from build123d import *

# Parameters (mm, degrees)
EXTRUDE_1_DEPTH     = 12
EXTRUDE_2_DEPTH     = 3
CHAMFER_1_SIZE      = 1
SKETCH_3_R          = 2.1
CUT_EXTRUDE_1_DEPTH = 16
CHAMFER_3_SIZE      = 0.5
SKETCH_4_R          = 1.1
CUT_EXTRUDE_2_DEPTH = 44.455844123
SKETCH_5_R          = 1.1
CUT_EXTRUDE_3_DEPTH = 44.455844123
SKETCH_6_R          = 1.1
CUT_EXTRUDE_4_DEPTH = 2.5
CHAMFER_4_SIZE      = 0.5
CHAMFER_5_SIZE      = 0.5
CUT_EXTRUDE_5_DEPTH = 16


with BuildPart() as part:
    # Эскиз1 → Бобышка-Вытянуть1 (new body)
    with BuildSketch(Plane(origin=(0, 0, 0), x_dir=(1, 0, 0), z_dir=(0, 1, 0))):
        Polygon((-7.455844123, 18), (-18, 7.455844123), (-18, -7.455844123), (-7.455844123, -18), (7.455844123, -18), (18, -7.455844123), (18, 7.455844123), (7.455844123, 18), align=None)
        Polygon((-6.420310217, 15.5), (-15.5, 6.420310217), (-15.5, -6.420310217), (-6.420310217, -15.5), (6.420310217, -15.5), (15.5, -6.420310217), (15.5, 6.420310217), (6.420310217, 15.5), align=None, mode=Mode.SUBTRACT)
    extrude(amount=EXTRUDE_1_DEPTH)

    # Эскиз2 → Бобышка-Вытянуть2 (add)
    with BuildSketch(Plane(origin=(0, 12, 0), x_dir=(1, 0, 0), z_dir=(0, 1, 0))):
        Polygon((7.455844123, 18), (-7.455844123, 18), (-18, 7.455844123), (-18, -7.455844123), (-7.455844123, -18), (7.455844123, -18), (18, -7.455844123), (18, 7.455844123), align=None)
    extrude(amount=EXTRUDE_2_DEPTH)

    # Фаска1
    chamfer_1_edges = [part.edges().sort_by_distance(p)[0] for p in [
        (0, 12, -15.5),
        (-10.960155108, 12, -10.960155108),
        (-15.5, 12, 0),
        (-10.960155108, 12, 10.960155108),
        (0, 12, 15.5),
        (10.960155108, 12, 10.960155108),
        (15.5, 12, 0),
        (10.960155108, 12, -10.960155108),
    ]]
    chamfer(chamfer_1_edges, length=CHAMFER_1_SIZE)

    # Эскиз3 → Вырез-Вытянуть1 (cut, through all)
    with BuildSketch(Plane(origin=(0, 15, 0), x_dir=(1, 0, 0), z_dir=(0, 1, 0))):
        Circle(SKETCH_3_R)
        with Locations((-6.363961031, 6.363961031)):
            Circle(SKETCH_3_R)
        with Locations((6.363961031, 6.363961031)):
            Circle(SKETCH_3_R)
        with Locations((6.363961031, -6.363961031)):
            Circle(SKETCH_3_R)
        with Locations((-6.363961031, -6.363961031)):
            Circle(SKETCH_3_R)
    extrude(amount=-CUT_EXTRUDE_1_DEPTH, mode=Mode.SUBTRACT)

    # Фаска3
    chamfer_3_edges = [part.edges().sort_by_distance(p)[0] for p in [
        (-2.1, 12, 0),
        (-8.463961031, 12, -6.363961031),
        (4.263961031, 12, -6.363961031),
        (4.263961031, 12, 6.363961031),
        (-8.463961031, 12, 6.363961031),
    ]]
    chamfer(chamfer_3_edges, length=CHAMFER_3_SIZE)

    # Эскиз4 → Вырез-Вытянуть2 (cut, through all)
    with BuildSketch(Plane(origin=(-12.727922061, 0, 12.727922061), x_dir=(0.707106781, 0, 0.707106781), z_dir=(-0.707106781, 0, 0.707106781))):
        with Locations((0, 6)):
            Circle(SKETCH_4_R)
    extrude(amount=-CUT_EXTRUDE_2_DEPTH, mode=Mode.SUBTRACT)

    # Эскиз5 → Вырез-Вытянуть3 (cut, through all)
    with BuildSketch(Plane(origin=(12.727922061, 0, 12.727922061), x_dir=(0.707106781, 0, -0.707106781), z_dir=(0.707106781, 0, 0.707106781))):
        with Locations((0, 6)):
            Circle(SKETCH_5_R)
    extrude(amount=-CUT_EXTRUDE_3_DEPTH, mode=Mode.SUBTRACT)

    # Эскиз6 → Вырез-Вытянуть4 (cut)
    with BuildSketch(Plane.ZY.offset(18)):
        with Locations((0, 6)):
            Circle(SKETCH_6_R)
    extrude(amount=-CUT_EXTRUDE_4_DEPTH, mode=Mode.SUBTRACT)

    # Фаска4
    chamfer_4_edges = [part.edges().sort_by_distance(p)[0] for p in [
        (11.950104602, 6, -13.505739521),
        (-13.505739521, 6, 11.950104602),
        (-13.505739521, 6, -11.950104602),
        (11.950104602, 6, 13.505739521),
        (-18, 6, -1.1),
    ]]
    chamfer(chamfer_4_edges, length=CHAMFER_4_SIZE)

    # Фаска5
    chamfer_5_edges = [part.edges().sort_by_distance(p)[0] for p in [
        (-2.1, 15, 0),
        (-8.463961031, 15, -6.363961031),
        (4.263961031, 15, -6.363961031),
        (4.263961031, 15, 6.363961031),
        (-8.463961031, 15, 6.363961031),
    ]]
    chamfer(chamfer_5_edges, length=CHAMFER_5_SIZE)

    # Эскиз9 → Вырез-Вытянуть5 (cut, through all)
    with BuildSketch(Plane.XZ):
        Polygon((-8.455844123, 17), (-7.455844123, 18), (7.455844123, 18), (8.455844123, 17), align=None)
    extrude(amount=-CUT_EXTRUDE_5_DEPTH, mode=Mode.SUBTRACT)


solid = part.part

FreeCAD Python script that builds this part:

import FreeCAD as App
import Part
import Sketcher
from FreeCAD import Vector
Q = App.Units.Quantity


def edges_at(feature, points):
    """Names of the edges that pass closest to the given points."""
    edges = feature.Shape.Edges
    near = lambda p: min(range(len(edges)), key=lambda i: edges[i].distToShape(Part.Vertex(*p))[0])
    return sorted({f"Edge{near(p) + 1}" for p in points})

doc = App.newDocument("Part")
params = doc.addObject("Spreadsheet::Sheet", "Params")
for row, (alias, value) in enumerate([
    ("pad1_length", "12 mm"),
    ("pad2_length", "3 mm"),
    ("chamfer_size", "1 mm"),
    ("sketch3_diameter", "4.2 mm"),
    ("chamfer2_size", "0.5 mm"),
    ("sketch4_diameter", "2.2 mm"),
    ("sketch5_diameter", "2.2 mm"),
    ("sketch6_diameter", "2.2 mm"),
    ("pocket4_length", "2.5 mm"),
    ("chamfer3_size", "0.5 mm"),
    ("chamfer4_size", "0.5 mm"),
], start=1):
    params.set(f"A{row}", alias)
    params.set(f"B{row}", "=" + value)
    params.setAlias(f"B{row}", alias)

body = doc.addObject("PartDesign::Body", "Body")

# Sketch on XZ plane
sketch1 = body.newObject("Sketcher::SketchObject", "Sketch")
sketch1.AttachmentSupport = (doc.getObject("XZ_Plane"), [""])
sketch1.MapMode = "FlatFace"
sketch1.addGeometry([
    Part.LineSegment(Vector(-7, -18, 0), Vector(-18, -7, 0)),  # 0
    Part.LineSegment(Vector(-18, -7, 0), Vector(-18, 7, 0)),  # 1
    Part.LineSegment(Vector(-18, 7, 0), Vector(-7, 18, 0)),  # 2
    Part.LineSegment(Vector(-7, 18, 0), Vector(7, 18, 0)),  # 3
    Part.LineSegment(Vector(7, 18, 0), Vector(18, 7, 0)),  # 4
    Part.LineSegment(Vector(18, 7, 0), Vector(18, -7, 0)),  # 5
    Part.LineSegment(Vector(18, -7, 0), Vector(7, -18, 0)),  # 6
    Part.LineSegment(Vector(7, -18, 0), Vector(-7, -18, 0)),  # 7
    Part.LineSegment(Vector(-16, -6, 0), Vector(-6, -16, 0)),  # 8
    Part.LineSegment(Vector(-6, -16, 0), Vector(6, -16, 0)),  # 9
    Part.LineSegment(Vector(6, -16, 0), Vector(16, -6, 0)),  # 10
    Part.LineSegment(Vector(16, -6, 0), Vector(16, 6, 0)),  # 11
    Part.LineSegment(Vector(16, 6, 0), Vector(6, 16, 0)),  # 12
    Part.LineSegment(Vector(6, 16, 0), Vector(-6, 16, 0)),  # 13
    Part.LineSegment(Vector(-6, 16, 0), Vector(-16, 6, 0)),  # 14
    Part.LineSegment(Vector(-16, 6, 0), Vector(-16, -6, 0)),  # 15
], False)
sketch1.addConstraint([
    Sketcher.Constraint("Coincident", 0, 2, 1, 1),
    Sketcher.Constraint("Coincident", 1, 2, 2, 1),
    Sketcher.Constraint("Coincident", 2, 2, 3, 1),
    Sketcher.Constraint("Coincident", 3, 2, 4, 1),
    Sketcher.Constraint("Coincident", 4, 2, 5, 1),
    Sketcher.Constraint("Coincident", 5, 2, 6, 1),
    Sketcher.Constraint("Coincident", 6, 2, 7, 1),
    Sketcher.Constraint("Coincident", 7, 2, 0, 1),
    Sketcher.Constraint("Coincident", 8, 2, 9, 1),
    Sketcher.Constraint("Coincident", 9, 2, 10, 1),
    Sketcher.Constraint("Coincident", 10, 2, 11, 1),
    Sketcher.Constraint("Coincident", 11, 2, 12, 1),
    Sketcher.Constraint("Coincident", 12, 2, 13, 1),
    Sketcher.Constraint("Coincident", 13, 2, 14, 1),
    Sketcher.Constraint("Coincident", 14, 2, 15, 1),
    Sketcher.Constraint("Coincident", 15, 2, 8, 1),
    Sketcher.Constraint("Vertical", 1),
    Sketcher.Constraint("Horizontal", 3),
    Sketcher.Constraint("Vertical", 5),
    Sketcher.Constraint("Horizontal", 7),
    Sketcher.Constraint("Horizontal", 9),
    Sketcher.Constraint("Vertical", 11),
    Sketcher.Constraint("Horizontal", 13),
    Sketcher.Constraint("Vertical", 15),
    Sketcher.Constraint("Symmetric", 0, 2, 4, 2, -1, 1),
    Sketcher.Constraint("Symmetric", 2, 2, 6, 2, -1, 1),
    Sketcher.Constraint("Symmetric", 8, 2, 12, 2, -1, 1),
    Sketcher.Constraint("Symmetric", 10, 2, 14, 2, -1, 1),
    Sketcher.Constraint("Perpendicular", 0, 2),
    Sketcher.Constraint("Perpendicular", 2, 4),
    Sketcher.Constraint("Perpendicular", 4, 6),
    Sketcher.Constraint("Perpendicular", 6, 8),
    Sketcher.Constraint("Perpendicular", 8, 10),
    Sketcher.Constraint("Perpendicular", 10, 12),
    Sketcher.Constraint("Perpendicular", 12, 14),
    Sketcher.Constraint("Horizontal", 1, 2, 4, 2),
    Sketcher.Constraint("Horizontal", 11, 2, 14, 2),
    Sketcher.Constraint("Vertical", 3, 2, 6, 2),
    Sketcher.Constraint("Equal", 7, 1),
    Sketcher.Constraint("Equal", 13, 11),
    Sketcher.Constraint("DistanceX", 0, 2, -1, 1, Q("18 mm")),
    Sketcher.Constraint("DistanceY", 8, 2, -1, 1, Q("15.5 mm")),
    Sketcher.Constraint("DistanceX", 3, 1, 3, 2, Q("14.911688 mm")),
    Sketcher.Constraint("DistanceX", 9, 1, 9, 2, Q("12.84062 mm")),
])
pad1 = body.newObject("PartDesign::Pad", "Pad")
pad1.Profile = sketch1
pad1.setExpression("Length", "Params.pad1_length")
pad1.Reversed = True

# Sketch on XZ plane
sketch2 = body.newObject("Sketcher::SketchObject", "Sketch001")
sketch2.AttachmentSupport = (doc.getObject("XZ_Plane"), [""])
sketch2.MapMode = "FlatFace"
sketch2.AttachmentOffset = App.Placement(Vector(0, 0, -12), App.Rotation())
sketch2.addGeometry([
    Part.LineSegment(Vector(7, -18, 0), Vector(-7, -18, 0)),  # 0
    Part.LineSegment(Vector(-7, -18, 0), Vector(-18, -7, 0)),  # 1
    Part.LineSegment(Vector(-18, -7, 0), Vector(-18, 7, 0)),  # 2
    Part.LineSegment(Vector(-18, 7, 0), Vector(-7, 18, 0)),  # 3
    Part.LineSegment(Vector(-7, 18, 0), Vector(7, 18, 0)),  # 4
    Part.LineSegment(Vector(7, 18, 0), Vector(18, 7, 0)),  # 5
    Part.LineSegment(Vector(18, 7, 0), Vector(18, -7, 0)),  # 6
    Part.LineSegment(Vector(18, -7, 0), Vector(7, -18, 0)),  # 7
], False)
sketch2.addConstraint([
    Sketcher.Constraint("Coincident", 0, 2, 1, 1),
    Sketcher.Constraint("Coincident", 1, 2, 2, 1),
    Sketcher.Constraint("Coincident", 2, 2, 3, 1),
    Sketcher.Constraint("Coincident", 3, 2, 4, 1),
    Sketcher.Constraint("Coincident", 4, 2, 5, 1),
    Sketcher.Constraint("Coincident", 5, 2, 6, 1),
    Sketcher.Constraint("Coincident", 6, 2, 7, 1),
    Sketcher.Constraint("Coincident", 7, 2, 0, 1),
    Sketcher.Constraint("Horizontal", 0),
    Sketcher.Constraint("Vertical", 2),
    Sketcher.Constraint("Horizontal", 4),
    Sketcher.Constraint("Vertical", 6),
    Sketcher.Constraint("Symmetric", 0, 2, 4, 2, -1, 1),
    Sketcher.Constraint("Symmetric", 1, 2, 5, 2, -1, 1),
    Sketcher.Constraint("Perpendicular", 1, 3),
    Sketcher.Constraint("Perpendicular", 5, 7),
    Sketcher.Constraint("Horizontal", 2, 2, 5, 2),
    Sketcher.Constraint("Horizontal", 1, 2, 6, 2),
    Sketcher.Constraint("Vertical", 0, 2, 3, 2),
    Sketcher.Constraint("Equal", 4, 2),
    Sketcher.Constraint("DistanceY", 0, 2, -1, 1, Q("18 mm")),
    Sketcher.Constraint("DistanceX", 0, 2, 0, 1, Q("14.911688 mm")),
])
pad2 = body.newObject("PartDesign::Pad", "Pad001")
pad2.Profile = sketch2
pad2.setExpression("Length", "Params.pad2_length")
pad2.Reversed = True
doc.recompute()

chamfer = body.newObject("PartDesign::Chamfer", "Chamfer")
chamfer.Base = (pad2, edges_at(pad2, [
    (0, 12, -15.5),
    (-10.96, 12, -10.96),
    (-15.5, 12, 0),
    (-10.96, 12, 10.96),
    (0, 12, 15.5),
    (10.96, 12, 10.96),
    (15.5, 12, 0),
    (10.96, 12, -10.96),
]))
chamfer.setExpression("Size", "Params.chamfer_size")

# Sketch on XZ plane
sketch3 = body.newObject("Sketcher::SketchObject", "Sketch002")
sketch3.AttachmentSupport = (doc.getObject("XZ_Plane"), [""])
sketch3.MapMode = "FlatFace"
sketch3.AttachmentOffset = App.Placement(Vector(0, 0, -15), App.Rotation())
sketch3.addGeometry([
    Part.Circle(Vector(0, 0, 0), Vector(0, 0, 1), 2.1),  # 0
    Part.Circle(Vector(-6.4, -6.4, 0), Vector(0, 0, 1), 2.1),  # 1
    Part.Circle(Vector(6.4, -6.4, 0), Vector(0, 0, 1), 2.1),  # 2
    Part.Circle(Vector(6.4, 6.4, 0), Vector(0, 0, 1), 2.1),  # 3
    Part.Circle(Vector(-6.4, 6.4, 0), Vector(0, 0, 1), 2.1),  # 4
], False)
sketch3.addConstraint([
    Sketcher.Constraint("Coincident", 0, 3, -1, 1),
    Sketcher.Constraint("Equal", 0, 1),
    Sketcher.Constraint("Equal", 1, 2),
    Sketcher.Constraint("Equal", 2, 3),
    Sketcher.Constraint("Equal", 3, 4),
    Sketcher.Constraint("Symmetric", 1, 3, 3, 3, -1, 1),
    Sketcher.Constraint("Symmetric", 2, 3, 4, 3, -1, 1),
    Sketcher.Constraint("Symmetric", 1, 3, 2, 3, -2),
    Sketcher.Constraint("Diameter", 0, Q("4.2 mm")),
    Sketcher.Constraint("DistanceX", 1, 3, -1, 1, Q("6.363961 mm")),
    Sketcher.Constraint("DistanceY", 1, 3, -1, 1, Q("6.363961 mm")),
])
sketch3.setExpression("Constraints[8]", "Params.sketch3_diameter")
pocket1 = body.newObject("PartDesign::Pocket", "Pocket")
pocket1.Profile = sketch3
pocket1.Type = "ThroughAll"
pocket1.Reversed = True
doc.recompute()

chamfer2 = body.newObject("PartDesign::Chamfer", "Chamfer001")
chamfer2.Base = (pocket1, edges_at(pocket1, [
    (-2.1, 12, 0),
    (-8.464, 12, -6.364),
    (4.264, 12, -6.364),
    (4.264, 12, 6.364),
    (-8.464, 12, 6.364),
]))
chamfer2.setExpression("Size", "Params.chamfer2_size")

# Sketch on an angled plane
sketch4 = body.newObject("Sketcher::SketchObject", "Sketch003")
sketch4.Placement = App.Placement(Vector(-12.727922, 0, 12.727922), App.Rotation(Vector(0.707106781, 0, 0.707106781), Vector(0, 0.999999999, 0), Vector(-0.707106781, 0, 0.707106781), "ZXY"))
sketch4.addGeometry(Part.Circle(Vector(0, 6, 0), Vector(0, 0, 1), 1.1), False)
sketch4.addConstraint([
    Sketcher.Constraint("PointOnObject", 0, 3, -2),
    Sketcher.Constraint("Diameter", 0, Q("2.2 mm")),
    Sketcher.Constraint("DistanceY", -1, 1, 0, 3, Q("6 mm")),
])
sketch4.setExpression("Constraints[1]", "Params.sketch4_diameter")
pocket2 = body.newObject("PartDesign::Pocket", "Pocket001")
pocket2.Profile = sketch4
pocket2.Type = "ThroughAll"

# Sketch on an angled plane
sketch5 = body.newObject("Sketcher::SketchObject", "Sketch004")
sketch5.Placement = App.Placement(Vector(12.727922, 0, 12.727922), App.Rotation(Vector(0.707106781, 0, -0.707106781), Vector(0, 0.999999999, 0), Vector(0.707106781, 0, 0.707106781), "ZXY"))
sketch5.addGeometry(Part.Circle(Vector(0, 6, 0), Vector(0, 0, 1), 1.1), False)
sketch5.addConstraint([
    Sketcher.Constraint("PointOnObject", 0, 3, -2),
    Sketcher.Constraint("Diameter", 0, Q("2.2 mm")),
    Sketcher.Constraint("DistanceY", -1, 1, 0, 3, Q("6 mm")),
])
sketch5.setExpression("Constraints[1]", "Params.sketch5_diameter")
pocket3 = body.newObject("PartDesign::Pocket", "Pocket002")
pocket3.Profile = sketch5
pocket3.Type = "ThroughAll"

# Sketch on YZ plane
sketch6 = body.newObject("Sketcher::SketchObject", "Sketch005")
sketch6.AttachmentSupport = (doc.getObject("YZ_Plane"), [""])
sketch6.MapMode = "FlatFace"
sketch6.AttachmentOffset = App.Placement(Vector(0, 0, -18), App.Rotation())
sketch6.addGeometry(Part.Circle(Vector(6, 0, 0), Vector(0, 0, 1), 1.1), False)
sketch6.addConstraint([
    Sketcher.Constraint("PointOnObject", 0, 3, -1),
    Sketcher.Constraint("Diameter", 0, Q("2.2 mm")),
    Sketcher.Constraint("DistanceX", -1, 1, 0, 3, Q("6 mm")),
])
sketch6.setExpression("Constraints[1]", "Params.sketch6_diameter")
pocket4 = body.newObject("PartDesign::Pocket", "Pocket003")
pocket4.Profile = sketch6
pocket4.setExpression("Length", "Params.pocket4_length")
pocket4.Reversed = True
doc.recompute()

chamfer3 = body.newObject("PartDesign::Chamfer", "Chamfer002")
chamfer3.Base = (pocket4, edges_at(pocket4, [
    (11.95, 6, -13.506),
    (-13.506, 6, 11.95),
    (-13.506, 6, -11.95),
    (11.95, 6, 13.506),
    (-18, 6, -1.1),
]))
chamfer3.setExpression("Size", "Params.chamfer3_size")
doc.recompute()

chamfer4 = body.newObject("PartDesign::Chamfer", "Chamfer003")
chamfer4.Base = (chamfer3, edges_at(chamfer3, [
    (-2.1, 15, 0),
    (-8.464, 15, -6.364),
    (4.264, 15, -6.364),
    (4.264, 15, 6.364),
    (-8.464, 15, 6.364),
]))
chamfer4.setExpression("Size", "Params.chamfer4_size")

# Sketch on XZ plane
sketch7 = body.newObject("Sketcher::SketchObject", "Sketch006")
sketch7.AttachmentSupport = (doc.getObject("XZ_Plane"), [""])
sketch7.MapMode = "FlatFace"
sketch7.addGeometry([
    Part.LineSegment(Vector(-7.5, 18, 0), Vector(-8.5, 17, 0)),
    Part.LineSegment(Vector(-8.5, 17, 0), Vector(8.5, 17, 0)),
    Part.LineSegment(Vector(8.5, 17, 0), Vector(7.5, 18, 0)),
    Part.LineSegment(Vector(7.5, 18, 0), Vector(-7.5, 18, 0)),
], False)
sketch7.addConstraint([
    Sketcher.Constraint("Coincident", 0, 2, 1, 1),
    Sketcher.Constraint("Coincident", 1, 2, 2, 1),
    Sketcher.Constraint("Coincident", 2, 2, 3, 1),
    Sketcher.Constraint("Coincident", 3, 2, 0, 1),
    Sketcher.Constraint("Horizontal", 1),
    Sketcher.Constraint("Horizontal", 3),
    Sketcher.Constraint("Perpendicular", 0, 2),
    Sketcher.Constraint("Equal", 0, 2),
    Sketcher.Constraint("DistanceY", -1, 1, 0, 2, Q("17 mm")),
    Sketcher.Constraint("DistanceY", -1, 1, 2, 2, Q("18 mm")),
    Sketcher.Constraint("DistanceX", 1, 1, 1, 2, Q("16.911688 mm")),
    Sketcher.Constraint("DistanceX", 0, 2, -1, 1, Q("8.455844 mm")),
])
pocket5 = body.newObject("PartDesign::Pocket", "Pocket004")
pocket5.Profile = sketch7
pocket5.Type = "ThroughAll"

doc.recompute()
